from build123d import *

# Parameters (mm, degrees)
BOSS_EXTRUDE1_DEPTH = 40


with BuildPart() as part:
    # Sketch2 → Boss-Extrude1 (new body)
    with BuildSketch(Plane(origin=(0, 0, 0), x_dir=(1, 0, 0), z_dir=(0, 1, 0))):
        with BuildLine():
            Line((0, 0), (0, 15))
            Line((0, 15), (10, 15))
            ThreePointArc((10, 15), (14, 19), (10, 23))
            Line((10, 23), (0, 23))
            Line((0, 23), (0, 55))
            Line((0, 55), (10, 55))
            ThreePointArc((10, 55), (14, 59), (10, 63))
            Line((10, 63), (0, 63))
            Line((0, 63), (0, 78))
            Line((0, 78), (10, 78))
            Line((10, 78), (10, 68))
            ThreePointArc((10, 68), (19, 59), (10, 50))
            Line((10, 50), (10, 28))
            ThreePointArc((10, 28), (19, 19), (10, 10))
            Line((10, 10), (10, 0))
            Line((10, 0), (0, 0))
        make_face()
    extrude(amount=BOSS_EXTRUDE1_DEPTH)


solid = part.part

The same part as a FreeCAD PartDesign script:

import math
import FreeCAD as App
import Part
import Sketcher
Q = App.Units.Quantity

doc = App.newDocument("Part")
params = doc.addObject("Spreadsheet::Sheet", "Params")
for row, (alias, value) in enumerate([
    ("sketch1_radius", "9 mm"),
    ("sketch1_radius2", "4 mm"),
    ("sketch1_width", "10 mm"),
    ("sketch1_height", "22 mm"),
    ("pad1_length", "40 mm"),
], start=1):
    params.set(f"A{row}", alias)
    params.set(f"B{row}", "=" + value)
    params.setAlias(f"B{row}", alias)

body = doc.addObject("PartDesign::Body", "Body")

sketch1 = body.newObject("Sketcher::SketchObject", "Sketch")
sketch1.AttachmentSupport = (doc.getObject("XZ_Plane"), [""])
sketch1.MapMode = "FlatFace"
sketch1.addGeometry([
    Part.LineSegment(App.Vector(0, -15, 0), App.Vector(0, 0, 0)),
    Part.LineSegment(App.Vector(0, 0, 0), App.Vector(10, 0, 0)),
    Part.LineSegment(App.Vector(10, 0, 0), App.Vector(10, -10, 0)),
    Part.ArcOfCircle(Part.Circle(App.Vector(10, -19, 0), App.Vector(0, 0, 1), 9), math.radians(-90), math.radians(90)),
    Part.LineSegment(App.Vector(10, -28, 0), App.Vector(10, -50, 0)),
    Part.ArcOfCircle(Part.Circle(App.Vector(10, -59, 0), App.Vector(0, 0, 1), 9), math.radians(-90), math.radians(90)),
    Part.LineSegment(App.Vector(10, -68, 0), App.Vector(10, -78, 0)),
    Part.LineSegment(App.Vector(10, -78, 0), App.Vector(0, -78, 0)),
    Part.LineSegment(App.Vector(0, -78, 0), App.Vector(0, -63, 0)),
    Part.LineSegment(App.Vector(0, -63, 0), App.Vector(10, -63, 0)),
    Part.ArcOfCircle(Part.Circle(App.Vector(10, -59, 0), App.Vector(0, 0, 1), 4), math.radians(-90), math.radians(90)),
    Part.LineSegment(App.Vector(10, -55, 0), App.Vector(0, -55, 0)),
    Part.LineSegment(App.Vector(0, -55, 0), App.Vector(0, -23, 0)),
    Part.LineSegment(App.Vector(0, -23, 0), App.Vector(10, -23, 0)),
    Part.ArcOfCircle(Part.Circle(App.Vector(10, -19, 0), App.Vector(0, 0, 1), 4), math.radians(-90), math.radians(90)),
    Part.LineSegment(App.Vector(10, -15, 0), App.Vector(0, -15, 0)),
], False)
sketch1.addConstraint([
    Sketcher.Constraint("Coincident", 0, 2, 1, 1),
    Sketcher.Constraint("Coincident", 1, 2, 2, 1),
    Sketcher.Constraint("Coincident", 2, 2, 3, 2),
    Sketcher.Constraint("Coincident", 3, 1, 4, 1),
    Sketcher.Constraint("Coincident", 4, 2, 5, 2),
    Sketcher.Constraint("Coincident", 5, 1, 6, 1),
    Sketcher.Constraint("Coincident", 6, 2, 7, 1),
    Sketcher.Constraint("Coincident", 7, 2, 8, 1),
    Sketcher.Constraint("Coincident", 8, 2, 9, 1),
    Sketcher.Constraint("Tangent", 9, 2, 10, 1),
    Sketcher.Constraint("Tangent", 10, 2, 11, 1),
    Sketcher.Constraint("Coincident", 11, 2, 12, 1),
    Sketcher.Constraint("Coincident", 12, 2, 13, 1),
    Sketcher.Constraint("Tangent", 13, 2, 14, 1),
    Sketcher.Constraint("Tangent", 14, 2, 15, 1),
    Sketcher.Constraint("Coincident", 15, 2, 0, 1),
    Sketcher.Constraint("Vertical", 0),
    Sketcher.Constraint("Horizontal", 1),
    Sketcher.Constraint("Vertical", 2),
    Sketcher.Constraint("Vertical", 4),
    Sketcher.Constraint("Vertical", 6),
    Sketcher.Constraint("Horizontal", 7),
    Sketcher.Constraint("Vertical", 8),
    Sketcher.Constraint("Horizontal", 9),
    Sketcher.Constraint("Horizontal", 11),
    Sketcher.Constraint("Vertical", 12),
    Sketcher.Constraint("Horizontal", 13),
    Sketcher.Constraint("Horizontal", 15),
    Sketcher.Constraint("Coincident", 0, 2, -1, 1),
    Sketcher.Constraint("Coincident", 10, 3, 5, 3),
    Sketcher.Constraint("Coincident", 14, 3, 3, 3),
    Sketcher.Constraint("Equal", 3, 5),
    Sketcher.Constraint("Equal", 10, 14),
    Sketcher.Constraint("PointOnObject", 7, 2, -2),
    Sketcher.Constraint("PointOnObject", 11, 2, -2),
    Sketcher.Constraint("Vertical", 3, 3, 5, 3),
    Sketcher.Constraint("Vertical", 14, 3, 1, 2),
    Sketcher.Constraint("Vertical", 2, 2, 3, 1),
    Sketcher.Constraint("Vertical", 4, 2, 5, 1),
    Sketcher.Constraint("Equal", 15, 2),
    Sketcher.Constraint("Equal", 2, 6),
    Sketcher.Constraint("Radius", 3, Q("9 mm")),
    Sketcher.Constraint("Radius", 10, Q("4 mm")),
    Sketcher.Constraint("DistanceX", 1, 1, 1, 2, Q("10 mm")),
    Sketcher.Constraint("DistanceY", 4, 2, 4, 1, Q("22 mm")),
])
sketch1.setExpression("Constraints[41]", "Params.sketch1_radius")
sketch1.setExpression("Constraints[42]", "Params.sketch1_radius2")
sketch1.setExpression("Constraints[43]", "Params.sketch1_width")
sketch1.setExpression("Constraints[44]", "Params.sketch1_height")
pad1 = body.newObject("PartDesign::Pad", "Pad")
pad1.Profile = sketch1
pad1.setExpression("Length", "Params.pad1_length")
pad1.Reversed = True

doc.recompute()
